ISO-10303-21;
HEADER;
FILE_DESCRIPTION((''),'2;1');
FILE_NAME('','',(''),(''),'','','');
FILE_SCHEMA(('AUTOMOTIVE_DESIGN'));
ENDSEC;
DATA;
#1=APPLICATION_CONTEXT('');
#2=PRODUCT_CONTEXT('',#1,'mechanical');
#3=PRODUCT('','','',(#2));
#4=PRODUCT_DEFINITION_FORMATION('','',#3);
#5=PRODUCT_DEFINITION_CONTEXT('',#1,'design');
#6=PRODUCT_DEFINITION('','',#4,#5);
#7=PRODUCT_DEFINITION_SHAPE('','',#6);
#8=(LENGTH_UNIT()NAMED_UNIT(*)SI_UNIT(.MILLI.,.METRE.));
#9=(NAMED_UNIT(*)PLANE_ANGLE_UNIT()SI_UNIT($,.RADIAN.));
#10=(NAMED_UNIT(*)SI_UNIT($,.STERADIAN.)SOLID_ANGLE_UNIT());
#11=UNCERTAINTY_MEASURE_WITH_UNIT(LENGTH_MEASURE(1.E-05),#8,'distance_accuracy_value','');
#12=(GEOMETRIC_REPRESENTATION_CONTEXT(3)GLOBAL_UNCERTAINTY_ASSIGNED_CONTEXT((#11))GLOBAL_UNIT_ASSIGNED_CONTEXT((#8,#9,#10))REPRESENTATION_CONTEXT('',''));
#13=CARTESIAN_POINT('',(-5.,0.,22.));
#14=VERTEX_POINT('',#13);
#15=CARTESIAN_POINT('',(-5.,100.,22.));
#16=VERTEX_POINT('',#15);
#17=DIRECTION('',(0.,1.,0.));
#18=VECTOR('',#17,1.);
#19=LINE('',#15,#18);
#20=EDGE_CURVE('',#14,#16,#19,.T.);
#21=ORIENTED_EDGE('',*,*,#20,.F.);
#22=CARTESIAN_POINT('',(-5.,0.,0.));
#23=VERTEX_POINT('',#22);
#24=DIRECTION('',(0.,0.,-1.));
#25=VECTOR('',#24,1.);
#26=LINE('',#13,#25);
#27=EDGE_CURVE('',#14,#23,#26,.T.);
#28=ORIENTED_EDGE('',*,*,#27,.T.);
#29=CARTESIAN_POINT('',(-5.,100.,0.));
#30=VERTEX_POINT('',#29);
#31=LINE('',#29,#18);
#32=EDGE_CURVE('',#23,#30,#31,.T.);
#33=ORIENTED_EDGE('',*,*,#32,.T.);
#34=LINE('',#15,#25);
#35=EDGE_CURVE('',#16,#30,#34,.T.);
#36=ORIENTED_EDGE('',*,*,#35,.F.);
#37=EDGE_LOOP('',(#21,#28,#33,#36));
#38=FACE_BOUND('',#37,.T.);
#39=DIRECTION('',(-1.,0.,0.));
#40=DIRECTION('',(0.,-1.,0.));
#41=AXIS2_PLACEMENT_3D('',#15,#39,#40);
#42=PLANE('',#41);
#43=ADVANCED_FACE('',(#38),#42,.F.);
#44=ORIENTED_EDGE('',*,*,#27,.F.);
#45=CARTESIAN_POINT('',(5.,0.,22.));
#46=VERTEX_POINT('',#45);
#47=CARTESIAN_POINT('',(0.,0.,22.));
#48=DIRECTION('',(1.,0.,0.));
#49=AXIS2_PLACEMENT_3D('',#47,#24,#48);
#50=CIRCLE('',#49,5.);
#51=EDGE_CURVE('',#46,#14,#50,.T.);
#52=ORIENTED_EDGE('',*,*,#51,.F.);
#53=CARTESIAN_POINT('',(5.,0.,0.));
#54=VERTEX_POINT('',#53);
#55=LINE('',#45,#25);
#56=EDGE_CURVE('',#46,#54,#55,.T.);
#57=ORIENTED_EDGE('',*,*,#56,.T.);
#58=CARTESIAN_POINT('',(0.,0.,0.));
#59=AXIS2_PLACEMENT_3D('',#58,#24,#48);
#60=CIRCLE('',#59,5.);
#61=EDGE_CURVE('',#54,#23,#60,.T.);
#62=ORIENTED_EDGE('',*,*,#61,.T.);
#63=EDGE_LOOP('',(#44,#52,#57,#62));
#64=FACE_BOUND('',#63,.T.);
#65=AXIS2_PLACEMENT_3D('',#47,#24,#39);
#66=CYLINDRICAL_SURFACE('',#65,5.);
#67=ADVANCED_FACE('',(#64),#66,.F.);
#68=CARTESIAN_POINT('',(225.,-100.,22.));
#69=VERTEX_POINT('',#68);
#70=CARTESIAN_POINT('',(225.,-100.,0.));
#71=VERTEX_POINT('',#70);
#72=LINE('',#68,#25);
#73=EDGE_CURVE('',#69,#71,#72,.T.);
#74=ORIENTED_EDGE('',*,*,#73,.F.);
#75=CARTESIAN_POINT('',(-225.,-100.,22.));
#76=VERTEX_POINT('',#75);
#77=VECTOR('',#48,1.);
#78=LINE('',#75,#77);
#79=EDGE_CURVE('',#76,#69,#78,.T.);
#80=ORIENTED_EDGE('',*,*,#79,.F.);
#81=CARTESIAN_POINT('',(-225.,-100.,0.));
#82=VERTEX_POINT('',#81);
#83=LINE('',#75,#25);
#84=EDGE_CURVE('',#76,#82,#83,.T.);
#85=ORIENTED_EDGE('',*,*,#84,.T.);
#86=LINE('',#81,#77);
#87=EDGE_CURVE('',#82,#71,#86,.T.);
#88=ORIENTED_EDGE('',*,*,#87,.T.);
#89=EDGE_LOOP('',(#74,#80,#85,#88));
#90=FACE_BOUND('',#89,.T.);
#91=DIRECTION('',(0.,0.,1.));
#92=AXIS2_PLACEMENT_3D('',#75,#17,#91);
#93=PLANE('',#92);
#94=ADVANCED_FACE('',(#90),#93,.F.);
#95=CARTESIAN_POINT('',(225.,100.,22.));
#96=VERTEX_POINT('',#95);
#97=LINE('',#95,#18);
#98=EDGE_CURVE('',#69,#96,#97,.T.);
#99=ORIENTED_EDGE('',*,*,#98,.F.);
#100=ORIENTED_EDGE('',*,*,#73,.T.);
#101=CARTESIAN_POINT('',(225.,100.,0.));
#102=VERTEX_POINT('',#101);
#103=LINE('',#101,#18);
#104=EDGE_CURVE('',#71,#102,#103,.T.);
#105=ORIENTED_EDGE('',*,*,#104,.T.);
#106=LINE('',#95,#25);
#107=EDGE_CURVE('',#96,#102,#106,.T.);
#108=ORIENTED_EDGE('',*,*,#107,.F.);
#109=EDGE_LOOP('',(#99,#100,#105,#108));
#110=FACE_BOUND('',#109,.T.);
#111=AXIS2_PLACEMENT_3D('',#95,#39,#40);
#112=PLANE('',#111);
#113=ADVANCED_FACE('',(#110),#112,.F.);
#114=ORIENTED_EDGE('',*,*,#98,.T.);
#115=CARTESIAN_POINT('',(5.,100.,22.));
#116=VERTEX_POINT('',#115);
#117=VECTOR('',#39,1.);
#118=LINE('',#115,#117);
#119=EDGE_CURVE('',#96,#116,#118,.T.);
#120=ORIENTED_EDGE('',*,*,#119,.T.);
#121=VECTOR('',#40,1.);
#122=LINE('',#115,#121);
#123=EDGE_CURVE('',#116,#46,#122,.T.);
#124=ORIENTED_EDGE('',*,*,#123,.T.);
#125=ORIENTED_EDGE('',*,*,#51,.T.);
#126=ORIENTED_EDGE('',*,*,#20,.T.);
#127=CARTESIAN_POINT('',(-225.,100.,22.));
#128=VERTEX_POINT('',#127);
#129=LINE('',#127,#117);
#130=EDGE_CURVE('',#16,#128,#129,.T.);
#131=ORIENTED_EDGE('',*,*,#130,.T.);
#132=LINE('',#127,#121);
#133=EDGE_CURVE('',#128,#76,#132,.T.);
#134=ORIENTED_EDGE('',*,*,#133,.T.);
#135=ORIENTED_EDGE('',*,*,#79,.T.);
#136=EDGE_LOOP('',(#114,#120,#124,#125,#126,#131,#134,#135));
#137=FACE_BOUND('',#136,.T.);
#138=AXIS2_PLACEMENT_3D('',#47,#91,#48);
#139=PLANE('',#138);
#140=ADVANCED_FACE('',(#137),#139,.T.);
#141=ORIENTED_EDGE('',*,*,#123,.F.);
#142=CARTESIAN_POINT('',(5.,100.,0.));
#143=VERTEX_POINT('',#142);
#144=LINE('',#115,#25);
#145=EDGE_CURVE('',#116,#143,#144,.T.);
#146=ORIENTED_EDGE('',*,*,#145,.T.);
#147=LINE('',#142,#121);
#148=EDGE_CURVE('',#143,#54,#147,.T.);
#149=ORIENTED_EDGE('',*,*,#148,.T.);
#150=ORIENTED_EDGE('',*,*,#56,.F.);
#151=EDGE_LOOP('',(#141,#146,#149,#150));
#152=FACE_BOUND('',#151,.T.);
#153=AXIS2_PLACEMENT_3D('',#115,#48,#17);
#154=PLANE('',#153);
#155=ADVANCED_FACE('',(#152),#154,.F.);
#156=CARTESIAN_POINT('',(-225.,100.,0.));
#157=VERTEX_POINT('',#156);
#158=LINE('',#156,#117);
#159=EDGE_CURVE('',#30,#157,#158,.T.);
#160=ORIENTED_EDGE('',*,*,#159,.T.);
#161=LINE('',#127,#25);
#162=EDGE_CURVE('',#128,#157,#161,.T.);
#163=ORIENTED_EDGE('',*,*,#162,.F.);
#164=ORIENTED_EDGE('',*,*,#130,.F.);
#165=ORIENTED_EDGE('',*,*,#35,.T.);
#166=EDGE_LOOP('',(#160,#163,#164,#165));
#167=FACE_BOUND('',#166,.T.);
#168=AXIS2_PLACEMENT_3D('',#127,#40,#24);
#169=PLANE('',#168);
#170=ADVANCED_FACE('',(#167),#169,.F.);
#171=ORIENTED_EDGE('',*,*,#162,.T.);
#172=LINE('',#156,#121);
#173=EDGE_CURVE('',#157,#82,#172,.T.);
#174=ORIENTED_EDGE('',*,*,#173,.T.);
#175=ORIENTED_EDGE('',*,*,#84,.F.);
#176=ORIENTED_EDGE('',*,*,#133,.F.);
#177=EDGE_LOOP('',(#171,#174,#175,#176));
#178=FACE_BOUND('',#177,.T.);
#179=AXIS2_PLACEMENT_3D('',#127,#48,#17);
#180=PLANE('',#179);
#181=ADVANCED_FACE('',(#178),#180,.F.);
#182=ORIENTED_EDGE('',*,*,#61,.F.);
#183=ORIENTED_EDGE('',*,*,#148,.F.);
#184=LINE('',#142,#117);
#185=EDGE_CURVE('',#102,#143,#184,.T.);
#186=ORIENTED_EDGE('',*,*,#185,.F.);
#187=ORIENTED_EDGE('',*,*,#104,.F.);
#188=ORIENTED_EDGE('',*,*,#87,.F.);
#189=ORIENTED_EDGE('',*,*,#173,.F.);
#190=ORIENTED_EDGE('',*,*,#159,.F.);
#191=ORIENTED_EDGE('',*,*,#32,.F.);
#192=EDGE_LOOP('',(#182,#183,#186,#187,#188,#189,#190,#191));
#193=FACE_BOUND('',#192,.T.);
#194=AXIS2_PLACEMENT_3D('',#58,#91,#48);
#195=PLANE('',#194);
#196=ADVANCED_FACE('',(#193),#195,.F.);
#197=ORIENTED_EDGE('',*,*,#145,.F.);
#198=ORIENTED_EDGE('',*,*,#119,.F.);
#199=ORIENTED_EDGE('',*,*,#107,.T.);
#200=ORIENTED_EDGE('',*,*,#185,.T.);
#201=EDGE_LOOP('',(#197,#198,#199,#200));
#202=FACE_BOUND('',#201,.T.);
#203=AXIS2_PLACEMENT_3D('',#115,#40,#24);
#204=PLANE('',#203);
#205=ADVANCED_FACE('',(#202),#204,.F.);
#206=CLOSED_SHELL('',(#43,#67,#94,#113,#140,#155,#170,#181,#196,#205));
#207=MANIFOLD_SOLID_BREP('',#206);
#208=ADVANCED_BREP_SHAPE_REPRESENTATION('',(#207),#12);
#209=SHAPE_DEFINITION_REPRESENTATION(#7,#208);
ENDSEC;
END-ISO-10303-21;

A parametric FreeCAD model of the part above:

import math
import FreeCAD as App
import Part
import Sketcher
from FreeCAD import Vector

doc = App.newDocument("Part")
body = doc.addObject("PartDesign::Body", "Body")

sketch1 = body.newObject("Sketcher::SketchObject", "Sketch")
sketch1.AttachmentSupport = (doc.getObject("XY_Plane"), [""])
sketch1.MapMode = "FlatFace"
sketch1.addGeometry(Part.LineSegment(Vector(5, 100, 0), Vector(5, 0, 0)), False)
sketch1.addGeometry(Part.ArcOfCircle(Part.Circle(Vector(0, 0, 0), Vector(0, 0, 1), 5), math.radians(180), math.radians(360)), False)
sketch1.addGeometry(Part.LineSegment(Vector(-5, 0, 0), Vector(-5, 100, 0)), False)
sketch1.addGeometry(Part.LineSegment(Vector(-5, 100, 0), Vector(-225, 100, 0)), False)
sketch1.addGeometry(Part.LineSegment(Vector(-225, 100, 0), Vector(-225, -100, 0)), False)
sketch1.addGeometry(Part.LineSegment(Vector(-225, -100, 0), Vector(225, -100, 0)), False)
sketch1.addGeometry(Part.LineSegment(Vector(225, -100, 0), Vector(225, 100, 0)), False)
sketch1.addGeometry(Part.LineSegment(Vector(225, 100, 0), Vector(5, 100, 0)), False)
sketch1.addConstraint(Sketcher.Constraint("Tangent", 0, 2, 1, 2))
sketch1.addConstraint(Sketcher.Constraint("Tangent", 1, 1, 2, 1))
sketch1.addConstraint(Sketcher.Constraint("Coincident", 2, 2, 3, 1))
sketch1.addConstraint(Sketcher.Constraint("Coincident", 3, 2, 4, 1))
sketch1.addConstraint(Sketcher.Constraint("Coincident", 4, 2, 5, 1))
sketch1.addConstraint(Sketcher.Constraint("Coincident", 5, 2, 6, 1))
sketch1.addConstraint(Sketcher.Constraint("Coincident", 6, 2, 7, 1))
sketch1.addConstraint(Sketcher.Constraint("Coincident", 7, 2, 0, 1))
sketch1.addConstraint(Sketcher.Constraint("Vertical", 0))
sketch1.addConstraint(Sketcher.Constraint("Vertical", 2))
sketch1.addConstraint(Sketcher.Constraint("Horizontal", 3))
sketch1.addConstraint(Sketcher.Constraint("Vertical", 4))
sketch1.addConstraint(Sketcher.Constraint("Horizontal", 5))
sketch1.addConstraint(Sketcher.Constraint("Vertical", 6))
sketch1.addConstraint(Sketcher.Constraint("Horizontal", 7))
sketch1.addConstraint(Sketcher.Constraint("Coincident", 1, 3, -1, 1))
sketch1.addConstraint(Sketcher.Constraint("Symmetric", 3, 2, 5, 2, -1, 1))
sketch1.addConstraint(Sketcher.Constraint("Horizontal", 3, 2, 6, 2))
sketch1.addConstraint(Sketcher.Constraint("Radius", 1, 5.0))
sketch1.addConstraint(Sketcher.Constraint("DistanceX", 3, 2, 3, 1, 220.0))
sketch1.addConstraint(Sketcher.Constraint("DistanceY", 0, 2, 0, 1, 100.0))
pad1 = body.newObject("PartDesign::Pad", "Pad")
pad1.Profile = sketch1
pad1.Length = 22

doc.recompute()
